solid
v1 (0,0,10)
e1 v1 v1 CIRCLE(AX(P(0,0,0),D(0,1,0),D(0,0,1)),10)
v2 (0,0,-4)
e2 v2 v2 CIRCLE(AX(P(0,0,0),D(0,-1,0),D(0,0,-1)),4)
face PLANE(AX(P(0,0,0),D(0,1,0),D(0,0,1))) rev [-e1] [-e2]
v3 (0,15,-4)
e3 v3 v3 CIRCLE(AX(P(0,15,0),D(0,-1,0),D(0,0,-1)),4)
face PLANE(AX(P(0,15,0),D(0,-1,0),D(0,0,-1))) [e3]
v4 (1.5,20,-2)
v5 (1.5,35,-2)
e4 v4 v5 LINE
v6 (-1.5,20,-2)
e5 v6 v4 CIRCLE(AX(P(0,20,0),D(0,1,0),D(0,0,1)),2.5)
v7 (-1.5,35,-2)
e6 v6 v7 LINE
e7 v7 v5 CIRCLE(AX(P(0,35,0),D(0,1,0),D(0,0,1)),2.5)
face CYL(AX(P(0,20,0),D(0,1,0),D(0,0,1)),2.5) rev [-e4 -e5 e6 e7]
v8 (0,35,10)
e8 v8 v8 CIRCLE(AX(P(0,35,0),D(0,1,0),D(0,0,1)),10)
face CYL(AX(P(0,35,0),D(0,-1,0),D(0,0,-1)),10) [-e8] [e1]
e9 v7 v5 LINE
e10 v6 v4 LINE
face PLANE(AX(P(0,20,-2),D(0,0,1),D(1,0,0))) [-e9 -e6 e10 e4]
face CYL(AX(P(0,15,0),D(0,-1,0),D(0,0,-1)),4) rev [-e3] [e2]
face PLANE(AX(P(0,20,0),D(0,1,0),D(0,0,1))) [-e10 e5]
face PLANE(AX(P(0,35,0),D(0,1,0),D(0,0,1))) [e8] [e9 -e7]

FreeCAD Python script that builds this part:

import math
import FreeCAD as App
import Part
import Sketcher

doc = App.newDocument("Part")
body = doc.addObject("PartDesign::Body", "Body")

# Sketch on XZ plane
sketch1 = body.newObject("Sketcher::SketchObject", "Sketch")
sketch1.AttachmentSupport = (doc.getObject("XZ_Plane"), [""])
sketch1.MapMode = "FlatFace"
sketch1.addGeometry(Part.Circle(App.Vector(0, 0, 0), App.Vector(0, 0, 1), 10), False)
sketch1.addConstraint(Sketcher.Constraint("Coincident", 0, 3, -1, 1))
sketch1.addConstraint(Sketcher.Constraint("Diameter", 0, 20.0))
pad1 = body.newObject("PartDesign::Pad", "Pad")
pad1.Profile = sketch1
pad1.Length = 35
pad1.Reversed = True

# Sketch on XZ plane
sketch2 = body.newObject("Sketcher::SketchObject", "Sketch001")
sketch2.AttachmentSupport = (doc.getObject("XZ_Plane"), [""])
sketch2.MapMode = "FlatFace"
sketch2.addGeometry(Part.Circle(App.Vector(0, 0, 0), App.Vector(0, 0, 1), 4), False)
sketch2.addConstraint(Sketcher.Constraint("Coincident", 0, 3, -1, 1))
sketch2.addConstraint(Sketcher.Constraint("Diameter", 0, 8.0))
pocket1 = body.newObject("PartDesign::Pocket", "Pocket")
pocket1.Profile = sketch2
pocket1.Length = 15

# Sketch on XZ plane
sketch3 = body.newObject("Sketcher::SketchObject", "Sketch002")
sketch3.AttachmentSupport = (doc.getObject("XZ_Plane"), [""])
sketch3.MapMode = "FlatFace"
sketch3.AttachmentOffset = App.Placement(App.Vector(0, 0, -35), App.Rotation())
sketch3.addGeometry(Part.LineSegment(App.Vector(1.5, -2, 0), App.Vector(-1.5, -2, 0)), False)
sketch3.addGeometry(Part.ArcOfCircle(Part.Circle(App.Vector(0, 0, 0), App.Vector(0, 0, 1), 2.5), math.radians(0), math.radians(233)), False)
sketch3.addGeometry(Part.ArcOfCircle(Part.Circle(App.Vector(0, 0, 0), App.Vector(0, 0, 1), 2.5), math.radians(-53), math.radians(0)), False)
sketch3.addConstraint(Sketcher.Constraint("Coincident", 0, 2, 1, 2))
sketch3.addConstraint(Sketcher.Constraint("Tangent", 1, 1, 2, 2))
sketch3.addConstraint(Sketcher.Constraint("Coincident", 2, 1, 0, 1))
sketch3.addConstraint(Sketcher.Constraint("Horizontal", 0))
sketch3.addConstraint(Sketcher.Constraint("Coincident", 1, 3, -1, 1))
sketch3.addConstraint(Sketcher.Constraint("Equal", 1, 2))
sketch3.addConstraint(Sketcher.Constraint("PointOnObject", 1, 1, -1))
sketch3.addConstraint(Sketcher.Constraint("Radius", 1, 2.5))
sketch3.addConstraint(Sketcher.Constraint("DistanceX", 0, 2, 0, 1, 3.0))
pocket2 = body.newObject("PartDesign::Pocket", "Pocket001")
pocket2.Profile = sketch3
pocket2.Length = 15
pocket2.Reversed = True

doc.recompute()
